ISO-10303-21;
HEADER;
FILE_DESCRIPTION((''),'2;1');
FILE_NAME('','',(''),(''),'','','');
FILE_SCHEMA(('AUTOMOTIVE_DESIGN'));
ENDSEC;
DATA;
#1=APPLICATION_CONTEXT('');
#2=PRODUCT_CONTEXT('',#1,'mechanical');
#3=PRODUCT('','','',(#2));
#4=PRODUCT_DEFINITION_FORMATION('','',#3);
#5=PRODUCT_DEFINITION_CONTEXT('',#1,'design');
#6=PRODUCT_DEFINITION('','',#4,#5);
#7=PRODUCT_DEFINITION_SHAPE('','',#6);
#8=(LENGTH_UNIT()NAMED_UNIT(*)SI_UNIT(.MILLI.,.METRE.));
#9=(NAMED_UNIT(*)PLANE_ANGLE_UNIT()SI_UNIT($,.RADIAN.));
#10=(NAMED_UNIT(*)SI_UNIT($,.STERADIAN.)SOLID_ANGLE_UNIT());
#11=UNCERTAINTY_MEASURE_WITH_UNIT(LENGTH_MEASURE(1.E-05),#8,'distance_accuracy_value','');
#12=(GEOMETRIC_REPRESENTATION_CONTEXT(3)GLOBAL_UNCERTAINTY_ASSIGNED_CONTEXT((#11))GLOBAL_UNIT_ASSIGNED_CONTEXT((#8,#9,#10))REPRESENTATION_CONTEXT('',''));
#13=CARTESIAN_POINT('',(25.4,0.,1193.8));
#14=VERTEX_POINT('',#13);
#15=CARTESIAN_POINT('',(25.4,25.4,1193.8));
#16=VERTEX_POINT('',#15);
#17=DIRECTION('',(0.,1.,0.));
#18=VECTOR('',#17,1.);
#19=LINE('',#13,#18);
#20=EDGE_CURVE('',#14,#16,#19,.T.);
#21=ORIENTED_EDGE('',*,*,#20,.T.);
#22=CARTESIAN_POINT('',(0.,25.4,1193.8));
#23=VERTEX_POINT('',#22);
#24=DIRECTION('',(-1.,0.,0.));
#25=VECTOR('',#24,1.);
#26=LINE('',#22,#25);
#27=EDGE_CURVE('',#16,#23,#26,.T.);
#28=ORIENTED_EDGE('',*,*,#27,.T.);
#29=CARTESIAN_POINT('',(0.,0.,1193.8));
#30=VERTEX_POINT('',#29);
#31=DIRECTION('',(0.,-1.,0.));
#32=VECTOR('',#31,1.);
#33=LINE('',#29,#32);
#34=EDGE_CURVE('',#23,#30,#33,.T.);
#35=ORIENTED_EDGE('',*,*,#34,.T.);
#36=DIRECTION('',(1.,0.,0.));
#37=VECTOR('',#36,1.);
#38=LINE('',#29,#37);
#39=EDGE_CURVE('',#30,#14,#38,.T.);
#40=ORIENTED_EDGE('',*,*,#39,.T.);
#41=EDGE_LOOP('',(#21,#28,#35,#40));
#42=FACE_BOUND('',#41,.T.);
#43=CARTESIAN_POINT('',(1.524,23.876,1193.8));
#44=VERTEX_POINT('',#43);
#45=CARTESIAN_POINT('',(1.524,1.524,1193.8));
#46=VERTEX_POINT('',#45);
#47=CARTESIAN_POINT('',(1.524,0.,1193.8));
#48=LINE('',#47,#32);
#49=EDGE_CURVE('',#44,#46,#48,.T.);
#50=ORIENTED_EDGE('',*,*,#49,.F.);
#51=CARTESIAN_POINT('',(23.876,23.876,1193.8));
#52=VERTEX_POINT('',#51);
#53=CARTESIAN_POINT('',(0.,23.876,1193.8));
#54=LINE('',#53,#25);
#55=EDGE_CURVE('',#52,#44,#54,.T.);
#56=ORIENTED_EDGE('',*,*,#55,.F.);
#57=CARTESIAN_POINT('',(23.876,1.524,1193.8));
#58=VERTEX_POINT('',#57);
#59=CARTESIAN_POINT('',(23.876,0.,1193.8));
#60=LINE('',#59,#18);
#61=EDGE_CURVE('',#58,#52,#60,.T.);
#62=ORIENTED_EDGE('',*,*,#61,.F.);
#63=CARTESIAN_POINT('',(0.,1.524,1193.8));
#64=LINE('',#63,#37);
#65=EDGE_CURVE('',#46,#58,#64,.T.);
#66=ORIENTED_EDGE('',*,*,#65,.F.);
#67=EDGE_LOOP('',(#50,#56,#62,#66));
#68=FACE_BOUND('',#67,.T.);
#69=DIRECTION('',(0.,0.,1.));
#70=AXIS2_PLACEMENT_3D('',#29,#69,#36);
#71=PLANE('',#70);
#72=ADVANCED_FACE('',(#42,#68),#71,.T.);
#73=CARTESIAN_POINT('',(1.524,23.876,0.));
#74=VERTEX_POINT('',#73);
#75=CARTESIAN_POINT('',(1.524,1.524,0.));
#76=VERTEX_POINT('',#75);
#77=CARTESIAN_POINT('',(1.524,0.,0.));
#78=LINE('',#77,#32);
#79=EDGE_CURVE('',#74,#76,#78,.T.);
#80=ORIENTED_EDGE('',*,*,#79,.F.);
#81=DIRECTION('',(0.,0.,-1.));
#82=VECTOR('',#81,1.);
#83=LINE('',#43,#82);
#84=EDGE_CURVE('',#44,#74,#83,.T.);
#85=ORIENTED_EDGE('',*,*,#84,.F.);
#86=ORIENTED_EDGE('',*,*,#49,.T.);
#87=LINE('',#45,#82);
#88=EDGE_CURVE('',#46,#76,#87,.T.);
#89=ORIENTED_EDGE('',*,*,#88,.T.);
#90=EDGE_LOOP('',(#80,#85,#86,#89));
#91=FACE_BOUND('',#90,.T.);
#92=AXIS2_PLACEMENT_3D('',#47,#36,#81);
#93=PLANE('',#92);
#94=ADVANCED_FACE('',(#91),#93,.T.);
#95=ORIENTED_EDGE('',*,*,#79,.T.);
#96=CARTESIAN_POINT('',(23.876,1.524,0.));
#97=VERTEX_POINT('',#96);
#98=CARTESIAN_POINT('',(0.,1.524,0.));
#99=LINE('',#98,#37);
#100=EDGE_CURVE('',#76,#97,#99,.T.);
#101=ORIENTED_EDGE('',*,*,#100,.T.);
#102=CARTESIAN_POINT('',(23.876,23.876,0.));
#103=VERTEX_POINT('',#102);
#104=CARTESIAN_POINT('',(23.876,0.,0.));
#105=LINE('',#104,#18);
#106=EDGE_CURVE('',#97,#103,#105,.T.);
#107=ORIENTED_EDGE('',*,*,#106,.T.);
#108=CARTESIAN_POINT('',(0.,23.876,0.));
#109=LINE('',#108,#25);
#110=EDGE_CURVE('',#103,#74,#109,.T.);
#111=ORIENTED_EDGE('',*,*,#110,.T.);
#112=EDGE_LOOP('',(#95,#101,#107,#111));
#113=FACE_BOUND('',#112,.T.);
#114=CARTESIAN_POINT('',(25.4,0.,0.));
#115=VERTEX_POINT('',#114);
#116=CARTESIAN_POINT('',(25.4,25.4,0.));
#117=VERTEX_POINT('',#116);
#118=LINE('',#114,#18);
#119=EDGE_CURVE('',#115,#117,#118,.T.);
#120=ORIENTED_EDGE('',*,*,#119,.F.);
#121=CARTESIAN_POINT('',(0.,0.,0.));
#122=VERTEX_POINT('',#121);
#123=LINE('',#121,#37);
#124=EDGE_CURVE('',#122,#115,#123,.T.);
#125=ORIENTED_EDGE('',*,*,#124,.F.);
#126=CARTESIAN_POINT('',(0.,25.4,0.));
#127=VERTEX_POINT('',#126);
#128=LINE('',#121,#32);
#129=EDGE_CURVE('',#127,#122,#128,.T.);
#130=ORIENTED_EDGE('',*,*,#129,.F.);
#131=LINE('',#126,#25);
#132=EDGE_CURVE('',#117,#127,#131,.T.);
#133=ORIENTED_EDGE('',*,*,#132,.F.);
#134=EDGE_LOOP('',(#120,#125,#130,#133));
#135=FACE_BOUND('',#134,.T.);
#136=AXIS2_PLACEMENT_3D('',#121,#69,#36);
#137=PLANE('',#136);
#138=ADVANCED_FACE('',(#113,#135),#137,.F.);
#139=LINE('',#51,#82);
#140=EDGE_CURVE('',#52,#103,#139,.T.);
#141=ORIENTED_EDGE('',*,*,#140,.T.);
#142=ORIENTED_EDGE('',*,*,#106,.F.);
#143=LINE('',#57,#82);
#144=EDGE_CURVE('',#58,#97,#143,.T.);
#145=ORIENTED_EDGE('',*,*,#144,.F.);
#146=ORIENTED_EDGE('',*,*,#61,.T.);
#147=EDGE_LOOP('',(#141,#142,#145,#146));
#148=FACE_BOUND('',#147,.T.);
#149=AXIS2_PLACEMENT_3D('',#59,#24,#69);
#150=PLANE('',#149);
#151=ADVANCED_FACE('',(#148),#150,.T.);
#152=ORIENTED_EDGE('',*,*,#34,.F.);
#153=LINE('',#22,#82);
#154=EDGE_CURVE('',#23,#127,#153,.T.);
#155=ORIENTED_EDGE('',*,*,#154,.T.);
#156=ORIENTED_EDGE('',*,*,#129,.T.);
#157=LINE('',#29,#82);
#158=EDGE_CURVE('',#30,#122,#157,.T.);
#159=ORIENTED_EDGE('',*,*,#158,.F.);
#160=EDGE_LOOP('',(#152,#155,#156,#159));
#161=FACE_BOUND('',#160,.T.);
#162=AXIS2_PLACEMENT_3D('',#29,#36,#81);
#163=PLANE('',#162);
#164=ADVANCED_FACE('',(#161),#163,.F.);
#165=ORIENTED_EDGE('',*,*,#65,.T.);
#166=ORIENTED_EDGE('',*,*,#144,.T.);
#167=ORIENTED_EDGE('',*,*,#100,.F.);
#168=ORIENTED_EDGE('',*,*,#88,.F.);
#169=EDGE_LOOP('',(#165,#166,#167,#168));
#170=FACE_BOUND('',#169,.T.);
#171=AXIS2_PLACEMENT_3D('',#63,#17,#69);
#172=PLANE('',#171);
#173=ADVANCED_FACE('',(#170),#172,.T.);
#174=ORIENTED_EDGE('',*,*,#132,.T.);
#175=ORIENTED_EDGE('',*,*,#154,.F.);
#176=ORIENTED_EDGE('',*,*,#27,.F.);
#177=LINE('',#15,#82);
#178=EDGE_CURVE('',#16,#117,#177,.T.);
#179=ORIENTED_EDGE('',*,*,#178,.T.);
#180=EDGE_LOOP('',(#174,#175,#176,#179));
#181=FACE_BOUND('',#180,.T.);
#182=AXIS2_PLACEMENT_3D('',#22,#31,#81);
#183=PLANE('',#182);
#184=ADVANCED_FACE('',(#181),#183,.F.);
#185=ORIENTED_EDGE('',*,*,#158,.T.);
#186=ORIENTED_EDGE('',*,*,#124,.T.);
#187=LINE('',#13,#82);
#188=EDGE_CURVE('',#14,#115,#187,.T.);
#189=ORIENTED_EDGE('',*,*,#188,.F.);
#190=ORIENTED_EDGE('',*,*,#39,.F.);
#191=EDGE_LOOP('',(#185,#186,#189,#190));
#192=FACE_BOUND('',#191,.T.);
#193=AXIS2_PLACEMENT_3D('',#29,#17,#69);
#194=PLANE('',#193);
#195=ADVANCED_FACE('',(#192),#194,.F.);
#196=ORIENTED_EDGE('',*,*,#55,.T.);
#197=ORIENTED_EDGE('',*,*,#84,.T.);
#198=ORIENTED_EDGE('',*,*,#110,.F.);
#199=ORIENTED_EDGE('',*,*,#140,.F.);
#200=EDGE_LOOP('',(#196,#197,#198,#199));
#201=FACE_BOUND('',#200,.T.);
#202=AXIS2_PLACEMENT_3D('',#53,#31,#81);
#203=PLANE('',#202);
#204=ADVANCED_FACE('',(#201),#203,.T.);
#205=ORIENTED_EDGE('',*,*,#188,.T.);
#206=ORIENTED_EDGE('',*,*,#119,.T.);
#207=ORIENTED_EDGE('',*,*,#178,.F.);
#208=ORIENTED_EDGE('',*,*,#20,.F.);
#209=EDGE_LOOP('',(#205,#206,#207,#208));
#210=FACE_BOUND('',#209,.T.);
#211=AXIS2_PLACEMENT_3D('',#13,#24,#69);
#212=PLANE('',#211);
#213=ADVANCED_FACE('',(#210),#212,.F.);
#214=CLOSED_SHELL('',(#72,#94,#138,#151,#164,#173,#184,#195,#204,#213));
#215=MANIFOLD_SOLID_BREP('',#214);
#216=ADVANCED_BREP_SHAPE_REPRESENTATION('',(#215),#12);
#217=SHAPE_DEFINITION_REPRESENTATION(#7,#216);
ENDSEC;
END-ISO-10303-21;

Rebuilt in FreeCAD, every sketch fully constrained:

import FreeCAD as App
import Part
import Sketcher

V = App.Vector
Q = App.Units.Quantity


def add_polygon(sketch, points):
    """Adds a closed chain of lines whose ends are joined by coincident constraints."""
    first, n = sketch.GeometryCount, len(points)
    for a, b in zip(points, points[1:] + points[:1]):
        sketch.addGeometry(Part.LineSegment(App.Vector(*a, 0), App.Vector(*b, 0)), False)
    for i in range(n):
        sketch.addConstraint(Sketcher.Constraint("Coincident", first + i, 2, first + (i + 1) % n, 1))

doc = App.newDocument("Part")
body = doc.addObject("PartDesign::Body", "Body")

# Sketch on XY plane
sketch1 = body.newObject("Sketcher::SketchObject", "Sketch")
sketch1.AttachmentSupport = (doc.getObject("XY_Plane"), [""])
sketch1.MapMode = "FlatFace"
add_polygon(sketch1, [(0, 25.4), (0, 0), (25.4, 0), (25.4, 25.4)])  # lines 0-3
add_polygon(sketch1, [(23.876, 1.524), (1.524, 1.524), (1.524, 23.876), (23.876, 23.876)])  # lines 4-7
sketch1.addConstraint(Sketcher.Constraint("Vertical", 0))
sketch1.addConstraint(Sketcher.Constraint("Horizontal", 1))
sketch1.addConstraint(Sketcher.Constraint("Vertical", 2))
sketch1.addConstraint(Sketcher.Constraint("Horizontal", 3))
sketch1.addConstraint(Sketcher.Constraint("Horizontal", 4))
sketch1.addConstraint(Sketcher.Constraint("Vertical", 5))
sketch1.addConstraint(Sketcher.Constraint("Horizontal", 6))
sketch1.addConstraint(Sketcher.Constraint("Vertical", 7))
sketch1.addConstraint(Sketcher.Constraint("Coincident", 0, 2, -1, 1))
sketch1.addConstraint(Sketcher.Constraint("Equal", 3, 0))
sketch1.addConstraint(Sketcher.Constraint("Equal", 6, 5))
sketch1.addConstraint(Sketcher.Constraint("DistanceX", 1, 1, 1, 2, Q("1 in")))
sketch1.addConstraint(Sketcher.Constraint("DistanceX", 4, 2, 4, 1, Q("0.88 in")))
sketch1.addConstraint(Sketcher.Constraint("DistanceX", -1, 1, 4, 2, Q("0.06 in")))
sketch1.addConstraint(Sketcher.Constraint("DistanceY", -1, 1, 4, 2, Q("0.06 in")))
pad1 = body.newObject("PartDesign::Pad", "Pad")
pad1.Profile = sketch1
pad1.Length = Q("47 in")

doc.recompute()
